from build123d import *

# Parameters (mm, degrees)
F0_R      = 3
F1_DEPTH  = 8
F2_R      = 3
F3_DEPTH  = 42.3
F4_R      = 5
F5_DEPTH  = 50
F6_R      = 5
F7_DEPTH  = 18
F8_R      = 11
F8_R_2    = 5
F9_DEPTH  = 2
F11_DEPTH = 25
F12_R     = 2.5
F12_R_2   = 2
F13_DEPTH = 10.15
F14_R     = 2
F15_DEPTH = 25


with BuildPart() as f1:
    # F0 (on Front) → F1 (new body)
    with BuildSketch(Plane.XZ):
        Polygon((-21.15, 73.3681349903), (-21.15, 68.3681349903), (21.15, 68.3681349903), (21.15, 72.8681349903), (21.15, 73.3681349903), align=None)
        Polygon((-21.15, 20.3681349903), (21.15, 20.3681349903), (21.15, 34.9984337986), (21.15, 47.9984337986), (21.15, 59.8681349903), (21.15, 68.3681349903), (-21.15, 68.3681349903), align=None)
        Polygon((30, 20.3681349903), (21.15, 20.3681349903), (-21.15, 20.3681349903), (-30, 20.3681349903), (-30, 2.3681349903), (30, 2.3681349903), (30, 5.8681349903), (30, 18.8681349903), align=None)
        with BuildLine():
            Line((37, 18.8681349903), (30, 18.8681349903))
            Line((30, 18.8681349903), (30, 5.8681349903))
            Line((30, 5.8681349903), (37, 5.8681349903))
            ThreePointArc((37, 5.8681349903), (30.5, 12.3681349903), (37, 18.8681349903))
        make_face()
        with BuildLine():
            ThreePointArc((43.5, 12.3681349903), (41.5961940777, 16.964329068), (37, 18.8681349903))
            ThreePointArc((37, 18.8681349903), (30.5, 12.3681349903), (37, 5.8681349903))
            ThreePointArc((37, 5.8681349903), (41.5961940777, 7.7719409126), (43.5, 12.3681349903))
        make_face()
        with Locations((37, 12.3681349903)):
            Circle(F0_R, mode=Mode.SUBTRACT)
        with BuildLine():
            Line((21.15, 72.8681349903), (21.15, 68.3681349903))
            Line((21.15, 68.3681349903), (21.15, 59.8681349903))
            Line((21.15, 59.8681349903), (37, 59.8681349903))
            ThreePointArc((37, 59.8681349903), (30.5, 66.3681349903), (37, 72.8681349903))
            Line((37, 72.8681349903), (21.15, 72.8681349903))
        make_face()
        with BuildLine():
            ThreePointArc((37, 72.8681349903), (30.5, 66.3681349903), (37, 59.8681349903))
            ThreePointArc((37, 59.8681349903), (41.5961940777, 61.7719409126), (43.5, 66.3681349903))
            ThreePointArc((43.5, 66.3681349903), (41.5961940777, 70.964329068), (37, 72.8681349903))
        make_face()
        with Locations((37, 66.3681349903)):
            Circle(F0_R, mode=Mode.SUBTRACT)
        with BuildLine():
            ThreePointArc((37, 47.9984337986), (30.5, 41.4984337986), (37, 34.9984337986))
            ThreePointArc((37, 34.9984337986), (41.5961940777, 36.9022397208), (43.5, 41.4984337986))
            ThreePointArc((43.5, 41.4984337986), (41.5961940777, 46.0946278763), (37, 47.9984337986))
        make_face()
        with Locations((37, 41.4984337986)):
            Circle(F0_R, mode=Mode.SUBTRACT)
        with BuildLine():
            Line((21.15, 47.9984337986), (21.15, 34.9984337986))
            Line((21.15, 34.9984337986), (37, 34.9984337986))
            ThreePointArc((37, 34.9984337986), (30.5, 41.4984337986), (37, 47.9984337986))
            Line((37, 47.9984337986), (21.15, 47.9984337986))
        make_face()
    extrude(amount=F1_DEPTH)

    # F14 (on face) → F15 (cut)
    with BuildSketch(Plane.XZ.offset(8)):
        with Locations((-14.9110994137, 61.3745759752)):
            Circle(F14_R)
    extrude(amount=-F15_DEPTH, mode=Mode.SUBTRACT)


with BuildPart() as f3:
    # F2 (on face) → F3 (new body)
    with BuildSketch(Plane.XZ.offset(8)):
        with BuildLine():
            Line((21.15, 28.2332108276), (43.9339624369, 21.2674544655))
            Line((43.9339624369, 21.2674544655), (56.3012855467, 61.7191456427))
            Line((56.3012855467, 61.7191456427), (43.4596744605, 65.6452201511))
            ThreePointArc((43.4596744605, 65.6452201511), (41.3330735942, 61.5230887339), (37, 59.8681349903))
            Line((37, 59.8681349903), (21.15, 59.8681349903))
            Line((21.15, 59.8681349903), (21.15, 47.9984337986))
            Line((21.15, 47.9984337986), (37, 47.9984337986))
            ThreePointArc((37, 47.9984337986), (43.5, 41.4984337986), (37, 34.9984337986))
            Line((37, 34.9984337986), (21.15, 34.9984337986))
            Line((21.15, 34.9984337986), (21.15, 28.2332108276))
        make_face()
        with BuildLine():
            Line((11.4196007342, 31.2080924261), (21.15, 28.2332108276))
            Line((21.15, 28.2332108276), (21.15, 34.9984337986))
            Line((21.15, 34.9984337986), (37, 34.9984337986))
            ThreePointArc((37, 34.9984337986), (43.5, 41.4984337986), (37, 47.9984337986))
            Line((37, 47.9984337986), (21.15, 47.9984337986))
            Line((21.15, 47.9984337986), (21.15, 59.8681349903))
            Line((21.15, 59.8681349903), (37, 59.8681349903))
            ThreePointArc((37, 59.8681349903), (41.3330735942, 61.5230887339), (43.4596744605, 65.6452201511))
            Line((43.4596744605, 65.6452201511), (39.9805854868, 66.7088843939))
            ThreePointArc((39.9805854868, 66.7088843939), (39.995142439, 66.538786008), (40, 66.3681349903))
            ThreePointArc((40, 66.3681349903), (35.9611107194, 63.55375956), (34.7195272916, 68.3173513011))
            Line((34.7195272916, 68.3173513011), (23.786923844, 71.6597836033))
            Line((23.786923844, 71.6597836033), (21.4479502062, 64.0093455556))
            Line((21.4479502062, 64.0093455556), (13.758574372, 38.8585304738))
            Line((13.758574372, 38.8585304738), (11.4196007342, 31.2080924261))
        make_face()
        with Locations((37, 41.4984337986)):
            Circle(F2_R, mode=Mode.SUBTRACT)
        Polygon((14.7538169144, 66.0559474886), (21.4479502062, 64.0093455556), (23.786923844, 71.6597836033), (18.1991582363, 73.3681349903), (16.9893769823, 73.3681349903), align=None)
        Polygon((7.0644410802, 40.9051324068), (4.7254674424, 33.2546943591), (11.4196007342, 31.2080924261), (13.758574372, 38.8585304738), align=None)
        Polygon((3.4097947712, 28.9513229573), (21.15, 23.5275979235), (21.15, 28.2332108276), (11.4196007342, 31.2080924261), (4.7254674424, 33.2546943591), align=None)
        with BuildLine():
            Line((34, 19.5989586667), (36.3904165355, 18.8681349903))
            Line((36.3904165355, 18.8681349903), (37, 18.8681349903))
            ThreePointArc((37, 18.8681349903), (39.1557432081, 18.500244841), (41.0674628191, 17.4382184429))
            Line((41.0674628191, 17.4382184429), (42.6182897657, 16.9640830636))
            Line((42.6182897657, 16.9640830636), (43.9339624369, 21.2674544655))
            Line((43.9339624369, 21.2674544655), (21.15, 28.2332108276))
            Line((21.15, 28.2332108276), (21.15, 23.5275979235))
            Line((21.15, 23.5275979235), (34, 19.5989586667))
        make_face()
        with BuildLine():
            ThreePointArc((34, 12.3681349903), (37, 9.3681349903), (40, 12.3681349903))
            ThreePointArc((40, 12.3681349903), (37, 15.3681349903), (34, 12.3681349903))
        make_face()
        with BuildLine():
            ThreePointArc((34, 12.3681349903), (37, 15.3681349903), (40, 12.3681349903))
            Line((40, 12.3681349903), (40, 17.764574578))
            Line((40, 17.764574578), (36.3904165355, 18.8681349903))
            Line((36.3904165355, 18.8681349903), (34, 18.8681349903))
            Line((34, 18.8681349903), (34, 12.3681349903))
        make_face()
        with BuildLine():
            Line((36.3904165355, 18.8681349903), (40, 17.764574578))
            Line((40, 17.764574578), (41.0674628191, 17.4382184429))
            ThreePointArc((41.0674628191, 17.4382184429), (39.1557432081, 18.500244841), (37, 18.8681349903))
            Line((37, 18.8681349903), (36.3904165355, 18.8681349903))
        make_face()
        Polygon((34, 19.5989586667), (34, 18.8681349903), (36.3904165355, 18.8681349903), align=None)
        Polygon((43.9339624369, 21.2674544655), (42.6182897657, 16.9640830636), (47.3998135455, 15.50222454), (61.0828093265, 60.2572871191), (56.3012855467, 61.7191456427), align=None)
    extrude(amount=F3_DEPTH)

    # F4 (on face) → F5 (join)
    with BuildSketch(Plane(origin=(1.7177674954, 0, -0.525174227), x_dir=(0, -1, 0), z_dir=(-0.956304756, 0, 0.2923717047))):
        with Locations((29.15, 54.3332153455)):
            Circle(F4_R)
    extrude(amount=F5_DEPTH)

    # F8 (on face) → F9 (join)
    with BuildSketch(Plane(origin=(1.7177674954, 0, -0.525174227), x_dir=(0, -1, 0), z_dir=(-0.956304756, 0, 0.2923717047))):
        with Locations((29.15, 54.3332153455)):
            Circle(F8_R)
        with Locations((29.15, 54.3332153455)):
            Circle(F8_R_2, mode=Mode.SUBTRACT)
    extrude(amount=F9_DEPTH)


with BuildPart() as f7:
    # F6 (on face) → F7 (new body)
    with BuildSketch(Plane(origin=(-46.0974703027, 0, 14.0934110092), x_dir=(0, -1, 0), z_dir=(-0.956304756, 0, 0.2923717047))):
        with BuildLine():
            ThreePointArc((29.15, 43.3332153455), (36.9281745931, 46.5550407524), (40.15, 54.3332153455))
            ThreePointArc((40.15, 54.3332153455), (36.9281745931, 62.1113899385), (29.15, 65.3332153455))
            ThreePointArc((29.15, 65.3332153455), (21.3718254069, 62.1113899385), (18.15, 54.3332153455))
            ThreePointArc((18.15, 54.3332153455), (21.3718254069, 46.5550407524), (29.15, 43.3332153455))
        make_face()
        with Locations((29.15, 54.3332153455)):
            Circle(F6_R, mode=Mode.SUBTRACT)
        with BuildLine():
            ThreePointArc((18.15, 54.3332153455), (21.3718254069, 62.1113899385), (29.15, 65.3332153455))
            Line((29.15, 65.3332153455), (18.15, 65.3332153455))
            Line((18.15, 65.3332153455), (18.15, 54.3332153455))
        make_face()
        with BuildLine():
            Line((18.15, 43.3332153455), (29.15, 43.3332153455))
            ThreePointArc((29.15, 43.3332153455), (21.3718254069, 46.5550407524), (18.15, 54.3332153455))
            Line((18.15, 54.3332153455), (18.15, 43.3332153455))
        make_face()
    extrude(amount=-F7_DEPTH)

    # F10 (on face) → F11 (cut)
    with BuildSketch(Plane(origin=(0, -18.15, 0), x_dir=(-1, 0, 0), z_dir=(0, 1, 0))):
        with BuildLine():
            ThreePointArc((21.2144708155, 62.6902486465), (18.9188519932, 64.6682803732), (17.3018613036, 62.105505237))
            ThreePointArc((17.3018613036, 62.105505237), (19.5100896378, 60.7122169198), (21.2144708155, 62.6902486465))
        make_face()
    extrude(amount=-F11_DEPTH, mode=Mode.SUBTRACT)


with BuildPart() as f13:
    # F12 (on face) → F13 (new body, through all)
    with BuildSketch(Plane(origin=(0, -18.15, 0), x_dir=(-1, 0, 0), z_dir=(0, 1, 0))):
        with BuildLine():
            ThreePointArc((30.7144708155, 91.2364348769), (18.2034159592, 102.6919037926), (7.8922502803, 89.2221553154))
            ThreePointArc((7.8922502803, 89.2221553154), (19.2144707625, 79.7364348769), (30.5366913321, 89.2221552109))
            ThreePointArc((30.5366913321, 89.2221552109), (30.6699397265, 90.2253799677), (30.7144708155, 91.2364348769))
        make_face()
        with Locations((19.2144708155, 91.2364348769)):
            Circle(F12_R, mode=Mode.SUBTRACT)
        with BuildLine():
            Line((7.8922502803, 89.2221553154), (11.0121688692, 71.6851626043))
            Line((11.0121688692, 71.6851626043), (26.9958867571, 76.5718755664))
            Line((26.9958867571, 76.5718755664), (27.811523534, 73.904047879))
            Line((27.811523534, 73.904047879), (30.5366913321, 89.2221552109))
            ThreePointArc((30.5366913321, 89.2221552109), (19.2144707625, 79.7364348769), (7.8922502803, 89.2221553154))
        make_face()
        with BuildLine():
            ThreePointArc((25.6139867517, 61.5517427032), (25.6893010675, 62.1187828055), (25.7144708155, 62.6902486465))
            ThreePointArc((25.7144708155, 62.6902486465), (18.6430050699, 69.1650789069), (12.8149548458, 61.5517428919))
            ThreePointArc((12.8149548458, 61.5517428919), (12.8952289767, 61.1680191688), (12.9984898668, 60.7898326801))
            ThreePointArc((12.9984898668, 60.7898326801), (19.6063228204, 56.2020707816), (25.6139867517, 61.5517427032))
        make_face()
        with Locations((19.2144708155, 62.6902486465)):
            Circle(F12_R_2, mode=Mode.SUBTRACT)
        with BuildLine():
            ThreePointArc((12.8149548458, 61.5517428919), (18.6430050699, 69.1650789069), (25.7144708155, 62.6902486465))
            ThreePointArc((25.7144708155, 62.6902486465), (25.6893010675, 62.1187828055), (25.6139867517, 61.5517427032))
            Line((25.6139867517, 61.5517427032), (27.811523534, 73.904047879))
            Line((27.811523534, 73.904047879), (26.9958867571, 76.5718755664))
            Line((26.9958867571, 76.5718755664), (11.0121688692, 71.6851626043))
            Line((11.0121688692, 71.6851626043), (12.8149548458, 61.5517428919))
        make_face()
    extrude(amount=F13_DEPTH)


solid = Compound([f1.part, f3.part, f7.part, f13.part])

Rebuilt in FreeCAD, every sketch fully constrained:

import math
import FreeCAD as App
import Part
import Sketcher
from FreeCAD import Vector
Q = App.Units.Quantity

doc = App.newDocument("Part")
body = doc.addObject("PartDesign::Body", "Body")

# Sketch on XZ plane
sketch1 = body.newObject("Sketcher::SketchObject", "Sketch")
sketch1.AttachmentSupport = (doc.getObject("XZ_Plane"), [""])
sketch1.MapMode = "FlatFace"
sketch1.addGeometry(Part.LineSegment(Vector(-21.1, 73.4, 0), Vector(-21.1, 20.4, 0)), False)
sketch1.addGeometry(Part.LineSegment(Vector(-21.1, 20.4, 0), Vector(-30, 20.4, 0)), False)
sketch1.addGeometry(Part.LineSegment(Vector(-30, 20.4, 0), Vector(-30, 2.4, 0)), False)
sketch1.addGeometry(Part.LineSegment(Vector(-30, 2.4, 0), Vector(30, 2.4, 0)), False)
sketch1.addGeometry(Part.LineSegment(Vector(30, 2.4, 0), Vector(30, 5.9, 0)), False)
sketch1.addGeometry(Part.LineSegment(Vector(30, 5.9, 0), Vector(37, 5.9, 0)), False)
sketch1.addGeometry(Part.ArcOfCircle(Part.Circle(Vector(37, 12.4, 0), Vector(0, 0, 1), 6.5), math.radians(-90), math.radians(0)), False)
sketch1.addGeometry(Part.ArcOfCircle(Part.Circle(Vector(37, 12.4, 0), Vector(0, 0, 1), 6.5), math.radians(0), math.radians(90)), False)
sketch1.addGeometry(Part.LineSegment(Vector(37, 18.9, 0), Vector(30, 18.9, 0)), False)
sketch1.addGeometry(Part.LineSegment(Vector(30, 18.9, 0), Vector(30, 20.4, 0)), False)
sketch1.addGeometry(Part.LineSegment(Vector(30, 20.4, 0), Vector(21.1, 20.4, 0)), False)
sketch1.addGeometry(Part.LineSegment(Vector(21.1, 20.4, 0), Vector(21.1, 35, 0)), False)
sketch1.addGeometry(Part.LineSegment(Vector(21.1, 35, 0), Vector(37, 35, 0)), False)
sketch1.addGeometry(Part.ArcOfCircle(Part.Circle(Vector(37, 41.5, 0), Vector(0, 0, 1), 6.5), math.radians(-90), math.radians(0)), False)
sketch1.addGeometry(Part.ArcOfCircle(Part.Circle(Vector(37, 41.5, 0), Vector(0, 0, 1), 6.5), math.radians(0), math.radians(90)), False)
sketch1.addGeometry(Part.LineSegment(Vector(37, 48, 0), Vector(21.1, 48, 0)), False)
sketch1.addGeometry(Part.LineSegment(Vector(21.1, 48, 0), Vector(21.1, 59.9, 0)), False)
sketch1.addGeometry(Part.LineSegment(Vector(21.1, 59.9, 0), Vector(37, 59.9, 0)), False)
sketch1.addGeometry(Part.ArcOfCircle(Part.Circle(Vector(37, 66.4, 0), Vector(0, 0, 1), 6.5), math.radians(-90), math.radians(0)), False)
sketch1.addGeometry(Part.ArcOfCircle(Part.Circle(Vector(37, 66.4, 0), Vector(0, 0, 1), 6.5), math.radians(0), math.radians(90)), False)
sketch1.addGeometry(Part.LineSegment(Vector(37, 72.9, 0), Vector(21.1, 72.9, 0)), False)
sketch1.addGeometry(Part.LineSegment(Vector(21.1, 72.9, 0), Vector(21.1, 73.4, 0)), False)
sketch1.addGeometry(Part.LineSegment(Vector(21.1, 73.4, 0), Vector(-21.1, 73.4, 0)), False)
sketch1.addGeometry(Part.Circle(Vector(37, 12.4, 0), Vector(0, 0, 1), 3), False)
sketch1.addGeometry(Part.Circle(Vector(37, 66.4, 0), Vector(0, 0, 1), 3), False)
sketch1.addGeometry(Part.Circle(Vector(37, 41.5, 0), Vector(0, 0, 1), 3), False)
sketch1.addConstraint(Sketcher.Constraint("Coincident", 0, 2, 1, 1))
sketch1.addConstraint(Sketcher.Constraint("Coincident", 1, 2, 2, 1))
sketch1.addConstraint(Sketcher.Constraint("Coincident", 2, 2, 3, 1))
sketch1.addConstraint(Sketcher.Constraint("Coincident", 3, 2, 4, 1))
sketch1.addConstraint(Sketcher.Constraint("Coincident", 4, 2, 5, 1))
sketch1.addConstraint(Sketcher.Constraint("Tangent", 5, 2, 6, 1))
sketch1.addConstraint(Sketcher.Constraint("Tangent", 6, 2, 7, 1))
sketch1.addConstraint(Sketcher.Constraint("Tangent", 7, 2, 8, 1))
sketch1.addConstraint(Sketcher.Constraint("Coincident", 8, 2, 9, 1))
sketch1.addConstraint(Sketcher.Constraint("Coincident", 9, 2, 10, 1))
sketch1.addConstraint(Sketcher.Constraint("Coincident", 10, 2, 11, 1))
sketch1.addConstraint(Sketcher.Constraint("Coincident", 11, 2, 12, 1))
sketch1.addConstraint(Sketcher.Constraint("Tangent", 12, 2, 13, 1))
sketch1.addConstraint(Sketcher.Constraint("Tangent", 13, 2, 14, 1))
sketch1.addConstraint(Sketcher.Constraint("Tangent", 14, 2, 15, 1))
sketch1.addConstraint(Sketcher.Constraint("Coincident", 15, 2, 16, 1))
sketch1.addConstraint(Sketcher.Constraint("Coincident", 16, 2, 17, 1))
sketch1.addConstraint(Sketcher.Constraint("Tangent", 17, 2, 18, 1))
sketch1.addConstraint(Sketcher.Constraint("Tangent", 18, 2, 19, 1))
sketch1.addConstraint(Sketcher.Constraint("Tangent", 19, 2, 20, 1))
sketch1.addConstraint(Sketcher.Constraint("Coincident", 20, 2, 21, 1))
sketch1.addConstraint(Sketcher.Constraint("Coincident", 21, 2, 22, 1))
sketch1.addConstraint(Sketcher.Constraint("Coincident", 22, 2, 0, 1))
sketch1.addConstraint(Sketcher.Constraint("Vertical", 0))
sketch1.addConstraint(Sketcher.Constraint("Horizontal", 1))
sketch1.addConstraint(Sketcher.Constraint("Vertical", 2))
sketch1.addConstraint(Sketcher.Constraint("Horizontal", 3))
sketch1.addConstraint(Sketcher.Constraint("Vertical", 4))
sketch1.addConstraint(Sketcher.Constraint("Horizontal", 5))
sketch1.addConstraint(Sketcher.Constraint("Horizontal", 8))
sketch1.addConstraint(Sketcher.Constraint("Vertical", 9))
sketch1.addConstraint(Sketcher.Constraint("Horizontal", 10))
sketch1.addConstraint(Sketcher.Constraint("Vertical", 11))
sketch1.addConstraint(Sketcher.Constraint("Horizontal", 12))
sketch1.addConstraint(Sketcher.Constraint("Horizontal", 15))
sketch1.addConstraint(Sketcher.Constraint("Vertical", 16))
sketch1.addConstraint(Sketcher.Constraint("Horizontal", 17))
sketch1.addConstraint(Sketcher.Constraint("Horizontal", 20))
sketch1.addConstraint(Sketcher.Constraint("Vertical", 21))
sketch1.addConstraint(Sketcher.Constraint("Horizontal", 22))
sketch1.addConstraint(Sketcher.Constraint("Coincident", 23, 3, 6, 3))
sketch1.addConstraint(Sketcher.Constraint("Coincident", 24, 3, 18, 3))
sketch1.addConstraint(Sketcher.Constraint("Coincident", 25, 3, 13, 3))
sketch1.addConstraint(Sketcher.Constraint("Equal", 6, 7))
sketch1.addConstraint(Sketcher.Constraint("Equal", 7, 13))
sketch1.addConstraint(Sketcher.Constraint("Equal", 13, 14))
sketch1.addConstraint(Sketcher.Constraint("Equal", 14, 18))
sketch1.addConstraint(Sketcher.Constraint("Equal", 18, 19))
sketch1.addConstraint(Sketcher.Constraint("Equal", 23, 24))
sketch1.addConstraint(Sketcher.Constraint("Equal", 24, 25))
sketch1.addConstraint(Sketcher.Constraint("Symmetric", 1, 2, 9, 2, -2))
sketch1.addConstraint(Sketcher.Constraint("Horizontal", 23, 3, 6, 2))
sketch1.addConstraint(Sketcher.Constraint("Horizontal", 25, 3, 13, 2))
sketch1.addConstraint(Sketcher.Constraint("Horizontal", 24, 3, 18, 2))
sketch1.addConstraint(Sketcher.Constraint("Vertical", 7, 3, 13, 3))
sketch1.addConstraint(Sketcher.Constraint("Vertical", 14, 3, 18, 3))
sketch1.addConstraint(Sketcher.Constraint("Vertical", 4, 2, 8, 2))
sketch1.addConstraint(Sketcher.Constraint("Vertical", 11, 2, 15, 2))
sketch1.addConstraint(Sketcher.Constraint("Vertical", 16, 2, 20, 2))
sketch1.addConstraint(Sketcher.Constraint("Equal", 1, 10))
sketch1.addConstraint(Sketcher.Constraint("Diameter", 23, 6.0))
sketch1.addConstraint(Sketcher.Constraint("Radius", 6, 6.5))
sketch1.addConstraint(Sketcher.Constraint("DistanceX", 3, 1, 3, 2, 60.0))
sketch1.addConstraint(Sketcher.Constraint("DistanceX", 5, 1, 5, 2, 7.0))
sketch1.addConstraint(Sketcher.Constraint("DistanceY", 0, 2, 0, 1, 53.0))
sketch1.addConstraint(Sketcher.Constraint("DistanceY", 2, 2, 2, 1, 18.0))
sketch1.addConstraint(Sketcher.Constraint("DistanceX", 22, 2, 22, 1, 42.3))
sketch1.addConstraint(Sketcher.Constraint("DistanceY", 4, 1, 4, 2, 3.5))
sketch1.addConstraint(Sketcher.Constraint("DistanceY", 21, 1, 21, 2, 0.5))
sketch1.addConstraint(Sketcher.Constraint("DistanceY", 11, 1, 11, 2, 14.630299))
sketch1.addConstraint(Sketcher.Constraint("DistanceY", -1, 1, 6, 3, 12.368135))
pad1 = body.newObject("PartDesign::Pad", "Pad")
pad1.Profile = sketch1
pad1.Length = 8

# Sketch on XZ plane
sketch2 = body.newObject("Sketcher::SketchObject", "Sketch001")
sketch2.AttachmentSupport = (doc.getObject("XZ_Plane"), [""])
sketch2.MapMode = "FlatFace"
sketch2.AttachmentOffset = App.Placement(Vector(0, 0, 8), App.Rotation())
sketch2.addGeometry(Part.Circle(Vector(-14.9, 61.4, 0), Vector(0, 0, 1), 2), False)
sketch2.addConstraint(Sketcher.Constraint("Diameter", 0, 4.0))
sketch2.addConstraint(Sketcher.Constraint("DistanceX", 0, 3, -1, 1, 14.911099))
sketch2.addConstraint(Sketcher.Constraint("DistanceY", -1, 1, 0, 3, 61.374576))
pocket1 = body.newObject("PartDesign::Pocket", "Pocket")
pocket1.Profile = sketch2
pocket1.Length = 25
body2 = doc.addObject("PartDesign::Body", "Body001")

# Sketch on XZ plane
sketch3 = body2.newObject("Sketcher::SketchObject", "Sketch002")
sketch3.AttachmentSupport = (doc.getObject("XZ_Plane001"), [""])
sketch3.MapMode = "FlatFace"
sketch3.AttachmentOffset = App.Placement(Vector(0, 0, 8), App.Rotation())
sketch3.addGeometry(Part.LineSegment(Vector(43.46, 65.65, 0), Vector(39.98, 66.71, 0)), False)
sketch3.addGeometry(Part.ArcOfCircle(Part.Circle(Vector(37, 66.37, 0), Vector(0, 0, 1), 3), math.radians(0), math.radians(6.52)), False)
sketch3.addGeometry(Part.ArcOfCircle(Part.Circle(Vector(37, 66.37, 0), Vector(0, 0, 1), 3), math.radians(139), math.radians(360)), False)
sketch3.addGeometry(Part.LineSegment(Vector(34.72, 68.32, 0), Vector(23.79, 71.66, 0)), False)
sketch3.addGeometry(Part.LineSegment(Vector(23.79, 71.66, 0), Vector(18.2, 73.37, 0)), False)
sketch3.addGeometry(Part.LineSegment(Vector(18.2, 73.37, 0), Vector(16.99, 73.37, 0)), False)
sketch3.addGeometry(Part.LineSegment(Vector(16.99, 73.37, 0), Vector(14.75, 66.06, 0)), False)
sketch3.addGeometry(Part.LineSegment(Vector(14.75, 66.06, 0), Vector(21.45, 64.01, 0)), False)
sketch3.addGeometry(Part.LineSegment(Vector(21.45, 64.01, 0), Vector(13.76, 38.86, 0)), False)
sketch3.addGeometry(Part.LineSegment(Vector(13.76, 38.86, 0), Vector(7.06, 40.91, 0)), False)
sketch3.addGeometry(Part.LineSegment(Vector(7.06, 40.91, 0), Vector(4.73, 33.25, 0)), False)
sketch3.addGeometry(Part.LineSegment(Vector(4.73, 33.25, 0), Vector(3.41, 28.95, 0)), False)
sketch3.addGeometry(Part.LineSegment(Vector(3.41, 28.95, 0), Vector(21.15, 23.53, 0)), False)
sketch3.addGeometry(Part.LineSegment(Vector(21.15, 23.53, 0), Vector(34, 19.6, 0)), False)
sketch3.addGeometry(Part.LineSegment(Vector(34, 19.6, 0), Vector(34, 12.37, 0)), False)
sketch3.addGeometry(Part.ArcOfCircle(Part.Circle(Vector(37, 12.37, 0), Vector(0, 0, 1), 3), math.radians(180), math.radians(360)), False)
sketch3.addGeometry(Part.LineSegment(Vector(40, 12.37, 0), Vector(40, 17.76, 0)), False)
sketch3.addGeometry(Part.LineSegment(Vector(40, 17.76, 0), Vector(41.07, 17.44, 0)), False)
sketch3.addGeometry(Part.LineSegment(Vector(41.07, 17.44, 0), Vector(42.62, 16.96, 0)), False)
sketch3.addGeometry(Part.LineSegment(Vector(42.62, 16.96, 0), Vector(47.4, 15.5, 0)), False)
sketch3.addGeometry(Part.LineSegment(Vector(47.4, 15.5, 0), Vector(61.08, 60.26, 0)), False)
sketch3.addGeometry(Part.LineSegment(Vector(61.08, 60.26, 0), Vector(43.46, 65.65, 0)), False)
sketch3.addGeometry(Part.Circle(Vector(37, 41.5, 0), Vector(0, 0, 1), 3), False)
sketch3.addConstraint(Sketcher.Constraint("Coincident", 0, 2, 1, 2))
sketch3.addConstraint(Sketcher.Constraint("Tangent", 1, 1, 2, 2))
sketch3.addConstraint(Sketcher.Constraint("Coincident", 2, 1, 3, 1))
sketch3.addConstraint(Sketcher.Constraint("Coincident", 3, 2, 4, 1))
sketch3.addConstraint(Sketcher.Constraint("Coincident", 4, 2, 5, 1))
sketch3.addConstraint(Sketcher.Constraint("Coincident", 5, 2, 6, 1))
sketch3.addConstraint(Sketcher.Constraint("Coincident", 6, 2, 7, 1))
sketch3.addConstraint(Sketcher.Constraint("Coincident", 7, 2, 8, 1))
sketch3.addConstraint(Sketcher.Constraint("Coincident", 8, 2, 9, 1))
sketch3.addConstraint(Sketcher.Constraint("Coincident", 9, 2, 10, 1))
sketch3.addConstraint(Sketcher.Constraint("Coincident", 10, 2, 11, 1))
sketch3.addConstraint(Sketcher.Constraint("Coincident", 11, 2, 12, 1))
sketch3.addConstraint(Sketcher.Constraint("Coincident", 12, 2, 13, 1))
sketch3.addConstraint(Sketcher.Constraint("Coincident", 13, 2, 14, 1))
sketch3.addConstraint(Sketcher.Constraint("Tangent", 14, 2, 15, 1))
sketch3.addConstraint(Sketcher.Constraint("Tangent", 15, 2, 16, 1))
sketch3.addConstraint(Sketcher.Constraint("Coincident", 16, 2, 17, 1))
sketch3.addConstraint(Sketcher.Constraint("Coincident", 17, 2, 18, 1))
sketch3.addConstraint(Sketcher.Constraint("Coincident", 18, 2, 19, 1))
sketch3.addConstraint(Sketcher.Constraint("Coincident", 19, 2, 20, 1))
sketch3.addConstraint(Sketcher.Constraint("Coincident", 20, 2, 21, 1))
sketch3.addConstraint(Sketcher.Constraint("Coincident", 21, 2, 0, 1))
sketch3.addConstraint(Sketcher.Constraint("Horizontal", 5))
sketch3.addConstraint(Sketcher.Constraint("Vertical", 14))
sketch3.addConstraint(Sketcher.Constraint("Vertical", 16))
sketch3.addConstraint(Sketcher.Constraint("Equal", 1, 2))
sketch3.addConstraint(Sketcher.Constraint("Equal", 2, 15))
sketch3.addConstraint(Sketcher.Constraint("Equal", 15, 22))
sketch3.addConstraint(Sketcher.Constraint("Parallel", 0, 3))
sketch3.addConstraint(Sketcher.Constraint("Parallel", 3, 4))
sketch3.addConstraint(Sketcher.Constraint("Perpendicular", 4, 6))
sketch3.addConstraint(Sketcher.Constraint("Perpendicular", 6, 7))
sketch3.addConstraint(Sketcher.Constraint("Perpendicular", 7, 8))
sketch3.addConstraint(Sketcher.Constraint("Perpendicular", 8, 9))
sketch3.addConstraint(Sketcher.Constraint("Perpendicular", 9, 10))
sketch3.addConstraint(Sketcher.Constraint("Parallel", 10, 11))
sketch3.addConstraint(Sketcher.Constraint("Perpendicular", 11, 12))
sketch3.addConstraint(Sketcher.Constraint("Parallel", 12, 13))
sketch3.addConstraint(Sketcher.Constraint("Parallel", 13, 17))
sketch3.addConstraint(Sketcher.Constraint("Parallel", 17, 18))
sketch3.addConstraint(Sketcher.Constraint("Parallel", 18, 19))
sketch3.addConstraint(Sketcher.Constraint("Perpendicular", 19, 20))
sketch3.addConstraint(Sketcher.Constraint("Perpendicular", 20, 21))
sketch3.addConstraint(Sketcher.Constraint("Horizontal", 2, 3, 1, 1))
sketch3.addConstraint(Sketcher.Constraint("Vertical", 2, 3, 15, 3))
sketch3.addConstraint(Sketcher.Constraint("Vertical", 15, 3, 22, 3))
sketch3.addConstraint(Sketcher.Constraint("Equal", 7, 9))
sketch3.addConstraint(Sketcher.Constraint("Diameter", 22, 6.0))
sketch3.addConstraint(Sketcher.Constraint("Angle", 0, Q("163 deg")))
sketch3.addConstraint(Sketcher.Constraint("Distance", 7, 7.0))
sketch3.addConstraint(Sketcher.Constraint("Distance", 10, 8.0))
sketch3.addConstraint(Sketcher.Constraint("Distance", 19, 5.0))
sketch3.addConstraint(Sketcher.Constraint("DistanceX", -1, 1, 1, 3, 37.0))
sketch3.addConstraint(Sketcher.Constraint("DistanceY", 15, 3, 1, 3, 54.0))
sketch3.addConstraint(Sketcher.Constraint("DistanceY", 1, 3, 4, 2, 7.0))
sketch3.addConstraint(Sketcher.Constraint("Distance", 8, 26.3))
sketch3.addConstraint(Sketcher.Constraint("Distance", 11, 4.5))
sketch3.addConstraint(Sketcher.Constraint("Distance", 20, 46.8))
sketch3.addConstraint(Sketcher.Constraint("DistanceX", -1, 1, 12, 2, 21.15))
sketch3.addConstraint(Sketcher.Constraint("DistanceX", 5, 2, 5, 1, 1.209781))
sketch3.addConstraint(Sketcher.Constraint("DistanceY", 16, 1, 16, 2, 5.39644))
sketch3.addConstraint(Sketcher.Constraint("DistanceY", 22, 3, 1, 3, 24.869701))
sketch3.addConstraint(Sketcher.Constraint("DistanceY", 0, 2, 3, 2, 4.950899))
sketch3.addConstraint(Sketcher.Constraint("DistanceY", 9, 2, 22, 3, 0.593301))
sketch3.addConstraint(Sketcher.Constraint("DistanceY", 14, 2, 14, 1, 7.230824))
sketch3.addConstraint(Sketcher.Constraint("DistanceY", -1, 1, 2, 1, 68.317351))
sketch3.addConstraint(Sketcher.Constraint("DistanceY", -1, 1, 17, 2, 17.438218))
sketch3.addConstraint(Sketcher.Constraint("DistanceX", -1, 1, 18, 2, 42.61829))
sketch3.addConstraint(Sketcher.Constraint("DistanceY", -1, 1, 21, 2, 65.64522))
pad2 = body2.newObject("PartDesign::Pad", "Pad001")
pad2.Profile = sketch3
pad2.Length = 42.3

# Sketch on an angled plane
sketch4 = body2.newObject("Sketcher::SketchObject", "Sketch003")
sketch4.Placement = App.Placement(Vector(1.717767, 0, -0.525174), App.Rotation(Vector(0, -1, 0), Vector(0.292371705, 0, 0.956304756), Vector(-0.956304756, 0, 0.292371705), "ZXY"))
sketch4.addGeometry(Part.Circle(Vector(29, 54, 0), Vector(0, 0, 1), 5), False)
sketch4.addConstraint(Sketcher.Constraint("Diameter", 0, 10.0))
sketch4.addConstraint(Sketcher.Constraint("DistanceX", -1, 1, 0, 3, 29.15))
sketch4.addConstraint(Sketcher.Constraint("DistanceY", -1, 1, 0, 3, 54.333215))
pad3 = body2.newObject("PartDesign::Pad", "Pad002")
pad3.Profile = sketch4
pad3.Length = 50

# Sketch on an angled plane
sketch5 = body2.newObject("Sketcher::SketchObject", "Sketch004")
sketch5.Placement = App.Placement(Vector(1.717767, 0, -0.525174), App.Rotation(Vector(0, -1, 0), Vector(0.292371705, 0, 0.956304756), Vector(-0.956304756, 0, 0.292371705), "ZXY"))
sketch5.addGeometry(Part.Circle(Vector(29, 54, 0), Vector(0, 0, 1), 11), False)
sketch5.addGeometry(Part.Circle(Vector(29, 54, 0), Vector(0, 0, 1), 5), False)
sketch5.addConstraint(Sketcher.Constraint("Coincident", 1, 3, 0, 3))
sketch5.addConstraint(Sketcher.Constraint("Diameter", 0, 22.0))
sketch5.addConstraint(Sketcher.Constraint("Diameter", 1, 10.0))
sketch5.addConstraint(Sketcher.Constraint("DistanceX", -1, 1, 0, 3, 29.15))
sketch5.addConstraint(Sketcher.Constraint("DistanceY", -1, 1, 0, 3, 54.333215))
pad4 = body2.newObject("PartDesign::Pad", "Pad003")
pad4.Profile = sketch5
pad4.Length = 2
body3 = doc.addObject("PartDesign::Body", "Body002")

# Sketch on an angled plane
sketch6 = body3.newObject("Sketcher::SketchObject", "Sketch005")
sketch6.Placement = App.Placement(Vector(-46.09747, 0, 14.093411), App.Rotation(Vector(0, -1, 0), Vector(0.292371705, 0, 0.956304756), Vector(-0.956304756, 0, 0.292371705), "ZXY"))
sketch6.addGeometry(Part.ArcOfCircle(Part.Circle(Vector(29, 54, 0), Vector(0, 0, 1), 11), math.radians(-90), math.radians(0)), False)
sketch6.addGeometry(Part.ArcOfCircle(Part.Circle(Vector(29, 54, 0), Vector(0, 0, 1), 11), math.radians(0), math.radians(90)), False)
sketch6.addGeometry(Part.LineSegment(Vector(29, 65, 0), Vector(18, 65, 0)), False)
sketch6.addGeometry(Part.LineSegment(Vector(18, 65, 0), Vector(18, 43, 0)), False)
sketch6.addGeometry(Part.LineSegment(Vector(18, 43, 0), Vector(29, 43, 0)), False)
sketch6.addGeometry(Part.Circle(Vector(29, 54, 0), Vector(0, 0, 1), 5), False)
sketch6.addConstraint(Sketcher.Constraint("Tangent", 0, 2, 1, 1))
sketch6.addConstraint(Sketcher.Constraint("Tangent", 1, 2, 2, 1))
sketch6.addConstraint(Sketcher.Constraint("Coincident", 2, 2, 3, 1))
sketch6.addConstraint(Sketcher.Constraint("Coincident", 3, 2, 4, 1))
sketch6.addConstraint(Sketcher.Constraint("Tangent", 4, 2, 0, 1))
sketch6.addConstraint(Sketcher.Constraint("Horizontal", 2))
sketch6.addConstraint(Sketcher.Constraint("Vertical", 3))
sketch6.addConstraint(Sketcher.Constraint("Horizontal", 4))
sketch6.addConstraint(Sketcher.Constraint("Coincident", 5, 3, 0, 3))
sketch6.addConstraint(Sketcher.Constraint("Equal", 0, 1))
sketch6.addConstraint(Sketcher.Constraint("Horizontal", 5, 3, 0, 2))
sketch6.addConstraint(Sketcher.Constraint("Diameter", 5, 10.0))
sketch6.addConstraint(Sketcher.Constraint("Radius", 0, 11.0))
sketch6.addConstraint(Sketcher.Constraint("DistanceX", 2, 2, 2, 1, 11.0))
sketch6.addConstraint(Sketcher.Constraint("DistanceX", -1, 1, 0, 3, 29.15))
sketch6.addConstraint(Sketcher.Constraint("DistanceY", -1, 1, 0, 3, 54.333215))
pad5 = body3.newObject("PartDesign::Pad", "Pad004")
pad5.Profile = sketch6
pad5.Length = 18
pad5.Reversed = True

# Sketch on XZ plane
sketch7 = body3.newObject("Sketcher::SketchObject", "Sketch006")
sketch7.AttachmentSupport = (doc.getObject("XZ_Plane002"), [""])
sketch7.MapMode = "FlatFace"
sketch7.AttachmentOffset = App.Placement(Vector(0, 0, 18.15), App.Rotation())
sketch7.addGeometry(Part.ArcOfCircle(Part.Circle(Vector(-19.2, 62.7, 0), Vector(0, 0, 1), 2), math.radians(-17), math.radians(180)), False)
sketch7.addGeometry(Part.ArcOfCircle(Part.Circle(Vector(-19.2, 62.7, 0), Vector(0, 0, 1), 2), math.radians(180), math.radians(343)), False)
sketch7.addConstraint(Sketcher.Constraint("Tangent", 0, 1, 1, 2))
sketch7.addConstraint(Sketcher.Constraint("Coincident", 1, 1, 0, 2))
sketch7.addConstraint(Sketcher.Constraint("Horizontal", 0, 3, 1, 1))
sketch7.addConstraint(Sketcher.Constraint("Radius", 0, 2.0))
sketch7.addConstraint(Sketcher.Constraint("DistanceX", 0, 3, -1, 1, 19.214471))
sketch7.addConstraint(Sketcher.Constraint("DistanceY", -1, 1, 0, 3, 62.690249))
sketch7.addConstraint(Sketcher.Constraint("DistanceX", 0, 1, -1, 1, 17.301861))
pocket2 = body3.newObject("PartDesign::Pocket", "Pocket001")
pocket2.Profile = sketch7
pocket2.Length = 25
pocket2.Reversed = True
body4 = doc.addObject("PartDesign::Body", "Body003")

# Sketch on XZ plane
sketch8 = body4.newObject("Sketcher::SketchObject", "Sketch007")
sketch8.AttachmentSupport = (doc.getObject("XZ_Plane003"), [""])
sketch8.MapMode = "FlatFace"
sketch8.AttachmentOffset = App.Placement(Vector(0, 0, 18.15), App.Rotation())
sketch8.addGeometry(Part.ArcOfCircle(Part.Circle(Vector(-19.2, 91.2, 0), Vector(0, 0, 1), 11.5), math.radians(-10), math.radians(180)), False)
sketch8.addGeometry(Part.LineSegment(Vector(-7.9, 89.2, 0), Vector(-11, 71.7, 0)), False)
sketch8.addGeometry(Part.LineSegment(Vector(-11, 71.7, 0), Vector(-12.8, 61.6, 0)), False)
sketch8.addGeometry(Part.ArcOfCircle(Part.Circle(Vector(-19.2, 62.7, 0), Vector(0, 0, 1), 6.5), math.radians(-17), math.radians(-10.09)), False)
sketch8.addGeometry(Part.ArcOfCircle(Part.Circle(Vector(-19.2, 62.7, 0), Vector(0, 0, 1), 6.5), math.radians(-170), math.radians(-17)), False)
sketch8.addGeometry(Part.LineSegment(Vector(-25.6, 61.6, 0), Vector(-27.8, 73.9, 0)), False)
sketch8.addGeometry(Part.LineSegment(Vector(-27.8, 73.9, 0), Vector(-30.5, 89.2, 0)), False)
sketch8.addGeometry(Part.ArcOfCircle(Part.Circle(Vector(-19.2, 91.2, 0), Vector(0, 0, 1), 11.5), math.radians(180), math.radians(190.09)), False)
sketch8.addGeometry(Part.Circle(Vector(-19.2, 91.2, 0), Vector(0, 0, 1), 2.5), False)
sketch8.addGeometry(Part.Circle(Vector(-19.2, 62.7, 0), Vector(0, 0, 1), 2), False)
sketch8.addConstraint(Sketcher.Constraint("Tangent", 0, 1, 1, 1))
sketch8.addConstraint(Sketcher.Constraint("Coincident", 1, 2, 2, 1))
sketch8.addConstraint(Sketcher.Constraint("Tangent", 2, 2, 3, 2))
sketch8.addConstraint(Sketcher.Constraint("Tangent", 3, 1, 4, 2))
sketch8.addConstraint(Sketcher.Constraint("Tangent", 4, 1, 5, 1))
sketch8.addConstraint(Sketcher.Constraint("Coincident", 5, 2, 6, 1))
sketch8.addConstraint(Sketcher.Constraint("Tangent", 6, 2, 7, 2))
sketch8.addConstraint(Sketcher.Constraint("Tangent", 7, 1, 0, 2))
sketch8.addConstraint(Sketcher.Constraint("Coincident", 8, 3, 0, 3))
sketch8.addConstraint(Sketcher.Constraint("Coincident", 9, 3, 3, 3))
sketch8.addConstraint(Sketcher.Constraint("Equal", 3, 4))
sketch8.addConstraint(Sketcher.Constraint("Equal", 0, 7))
sketch8.addConstraint(Sketcher.Constraint("Parallel", 1, 2))
sketch8.addConstraint(Sketcher.Constraint("Parallel", 5, 6))
sketch8.addConstraint(Sketcher.Constraint("Horizontal", 2, 2, 4, 1))
sketch8.addConstraint(Sketcher.Constraint("Horizontal", 8, 3, 7, 1))
sketch8.addConstraint(Sketcher.Constraint("Diameter", 8, 5.0))
sketch8.addConstraint(Sketcher.Constraint("Diameter", 9, 4.0))
sketch8.addConstraint(Sketcher.Constraint("Radius", 0, 11.5))
sketch8.addConstraint(Sketcher.Constraint("Radius", 3, 6.5))
sketch8.addConstraint(Sketcher.Constraint("DistanceX", 3, 3, 1, 2, 8.202302))
sketch8.addConstraint(Sketcher.Constraint("DistanceY", 9, 3, 5, 2, 11.213799))
sketch8.addConstraint(Sketcher.Constraint("Distance", 5, 12.546259))
sketch8.addConstraint(Sketcher.Constraint("DistanceX", 0, 3, -1, 1, 19.214471))
sketch8.addConstraint(Sketcher.Constraint("DistanceY", -1, 1, 3, 3, 62.690249))
sketch8.addConstraint(Sketcher.Constraint("DistanceX", 3, 1, -1, 1, 12.99849))
pad6 = body4.newObject("PartDesign::Pad", "Pad005")
pad6.Profile = sketch8
pad6.Length = 10.15
pad6.Reversed = True

doc.recompute()
